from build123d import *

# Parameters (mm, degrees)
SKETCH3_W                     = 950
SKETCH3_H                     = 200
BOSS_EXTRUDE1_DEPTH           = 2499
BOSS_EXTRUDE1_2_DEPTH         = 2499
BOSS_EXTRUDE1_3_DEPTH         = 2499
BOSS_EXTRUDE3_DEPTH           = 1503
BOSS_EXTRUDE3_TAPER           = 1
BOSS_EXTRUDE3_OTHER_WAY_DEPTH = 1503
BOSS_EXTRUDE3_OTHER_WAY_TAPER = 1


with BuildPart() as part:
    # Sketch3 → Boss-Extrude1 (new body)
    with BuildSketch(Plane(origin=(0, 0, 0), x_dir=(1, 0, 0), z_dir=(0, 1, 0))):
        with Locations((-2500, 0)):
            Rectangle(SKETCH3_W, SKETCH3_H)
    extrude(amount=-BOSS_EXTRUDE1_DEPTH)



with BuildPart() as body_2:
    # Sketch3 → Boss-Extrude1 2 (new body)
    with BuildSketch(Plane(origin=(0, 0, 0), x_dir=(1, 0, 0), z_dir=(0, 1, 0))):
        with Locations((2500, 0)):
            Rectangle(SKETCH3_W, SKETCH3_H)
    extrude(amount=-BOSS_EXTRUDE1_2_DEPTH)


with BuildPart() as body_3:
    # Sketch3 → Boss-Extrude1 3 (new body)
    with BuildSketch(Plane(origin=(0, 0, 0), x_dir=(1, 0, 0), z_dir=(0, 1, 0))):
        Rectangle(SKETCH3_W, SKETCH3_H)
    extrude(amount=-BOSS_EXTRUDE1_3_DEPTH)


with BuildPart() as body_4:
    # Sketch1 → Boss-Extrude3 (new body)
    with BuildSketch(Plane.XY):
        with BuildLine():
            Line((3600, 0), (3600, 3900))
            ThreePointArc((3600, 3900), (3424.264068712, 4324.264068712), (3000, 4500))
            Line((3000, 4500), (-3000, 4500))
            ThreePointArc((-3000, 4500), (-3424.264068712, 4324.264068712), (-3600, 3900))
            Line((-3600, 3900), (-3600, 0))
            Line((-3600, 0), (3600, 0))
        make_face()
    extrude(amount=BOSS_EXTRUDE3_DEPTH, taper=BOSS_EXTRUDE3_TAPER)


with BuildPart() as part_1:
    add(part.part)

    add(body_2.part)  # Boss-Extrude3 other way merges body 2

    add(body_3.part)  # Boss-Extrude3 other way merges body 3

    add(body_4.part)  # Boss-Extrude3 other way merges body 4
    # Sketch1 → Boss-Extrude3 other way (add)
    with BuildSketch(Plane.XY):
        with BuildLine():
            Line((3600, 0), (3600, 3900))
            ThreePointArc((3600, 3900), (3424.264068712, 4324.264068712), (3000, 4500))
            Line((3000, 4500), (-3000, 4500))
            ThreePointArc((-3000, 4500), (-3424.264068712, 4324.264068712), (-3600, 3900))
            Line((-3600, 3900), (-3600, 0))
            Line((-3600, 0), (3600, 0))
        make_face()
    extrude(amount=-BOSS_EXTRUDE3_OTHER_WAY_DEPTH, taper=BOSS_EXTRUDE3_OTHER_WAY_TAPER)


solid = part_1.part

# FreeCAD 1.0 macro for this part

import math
import FreeCAD as App
import Part
import Sketcher
Q = App.Units.Quantity

doc = App.newDocument("Part")
body = doc.addObject("PartDesign::Body", "Body")

# Sketch on XZ plane
sketch1 = doc.addObject("Sketcher::SketchObject", "Sketch")
body.addObject(sketch1)
sketch1.AttachmentSupport = (doc.XZ_Plane, [""])
sketch1.MapMode = "FlatFace"
sketch1.addGeometry([
    Part.LineSegment(App.Vector(-2975, -100, 0), App.Vector(-2975, 100, 0)),
    Part.LineSegment(App.Vector(-2975, 100, 0), App.Vector(-2025, 100, 0)),
    Part.LineSegment(App.Vector(-2025, 100, 0), App.Vector(-2025, -100, 0)),
    Part.LineSegment(App.Vector(-2025, -100, 0), App.Vector(-2975, -100, 0)),
], False)
sketch1.addConstraint([
    Sketcher.Constraint("Coincident", 0, 2, 1, 1),
    Sketcher.Constraint("Coincident", 1, 2, 2, 1),
    Sketcher.Constraint("Coincident", 2, 2, 3, 1),
    Sketcher.Constraint("Coincident", 3, 2, 0, 1),
    Sketcher.Constraint("Vertical", 0),
    Sketcher.Constraint("Horizontal", 1),
    Sketcher.Constraint("Vertical", 2),
    Sketcher.Constraint("Horizontal", 3),
    Sketcher.Constraint("DistanceX", 1, 1, 1, 2, Q("950 mm")),
    Sketcher.Constraint("DistanceY", 0, 1, 0, 2, Q("200 mm")),
    Sketcher.Constraint("DistanceX", 0, 2, -1, 1, Q("2975 mm")),
    Sketcher.Constraint("DistanceY", -1, 1, 0, 2, Q("100 mm")),
])
pad1 = doc.addObject("PartDesign::Pad", "Pad")
body.addObject(pad1)
pad1.Profile = sketch1
pad1.Length = 2499
body2 = doc.addObject("PartDesign::Body", "Body001")

# Sketch on XZ plane
sketch2 = doc.addObject("Sketcher::SketchObject", "Sketch001")
body2.addObject(sketch2)
sketch2.AttachmentSupport = (doc.getObject("XZ_Plane001"), [""])
sketch2.MapMode = "FlatFace"
sketch2.addGeometry([
    Part.LineSegment(App.Vector(2025, -100, 0), App.Vector(2025, 100, 0)),
    Part.LineSegment(App.Vector(2025, 100, 0), App.Vector(2975, 100, 0)),
    Part.LineSegment(App.Vector(2975, 100, 0), App.Vector(2975, -100, 0)),
    Part.LineSegment(App.Vector(2975, -100, 0), App.Vector(2025, -100, 0)),
], False)
sketch2.addConstraint([
    Sketcher.Constraint("Coincident", 0, 2, 1, 1),
    Sketcher.Constraint("Coincident", 1, 2, 2, 1),
    Sketcher.Constraint("Coincident", 2, 2, 3, 1),
    Sketcher.Constraint("Coincident", 3, 2, 0, 1),
    Sketcher.Constraint("Vertical", 0),
    Sketcher.Constraint("Horizontal", 1),
    Sketcher.Constraint("Vertical", 2),
    Sketcher.Constraint("Horizontal", 3),
    Sketcher.Constraint("DistanceX", 1, 1, 1, 2, Q("950 mm")),
    Sketcher.Constraint("DistanceY", 0, 1, 0, 2, Q("200 mm")),
    Sketcher.Constraint("DistanceX", -1, 1, 0, 2, Q("2025 mm")),
    Sketcher.Constraint("DistanceY", -1, 1, 0, 2, Q("100 mm")),
])
pad2 = doc.addObject("PartDesign::Pad", "Pad001")
body2.addObject(pad2)
pad2.Profile = sketch2
pad2.Length = 2499
body3 = doc.addObject("PartDesign::Body", "Body002")

# Sketch on XZ plane
sketch3 = doc.addObject("Sketcher::SketchObject", "Sketch002")
body3.addObject(sketch3)
sketch3.AttachmentSupport = (doc.getObject("XZ_Plane002"), [""])
sketch3.MapMode = "FlatFace"
sketch3.addGeometry([
    Part.LineSegment(App.Vector(-475, -100, 0), App.Vector(-475, 100, 0)),
    Part.LineSegment(App.Vector(-475, 100, 0), App.Vector(475, 100, 0)),
    Part.LineSegment(App.Vector(475, 100, 0), App.Vector(475, -100, 0)),
    Part.LineSegment(App.Vector(475, -100, 0), App.Vector(-475, -100, 0)),
], False)
sketch3.addConstraint([
    Sketcher.Constraint("Coincident", 0, 2, 1, 1),
    Sketcher.Constraint("Coincident", 1, 2, 2, 1),
    Sketcher.Constraint("Coincident", 2, 2, 3, 1),
    Sketcher.Constraint("Coincident", 3, 2, 0, 1),
    Sketcher.Constraint("Vertical", 0),
    Sketcher.Constraint("Horizontal", 1),
    Sketcher.Constraint("Vertical", 2),
    Sketcher.Constraint("Horizontal", 3),
    Sketcher.Constraint("Symmetric", 0, 2, 2, 2, -1, 1),
    Sketcher.Constraint("DistanceX", 1, 1, 1, 2, Q("950 mm")),
    Sketcher.Constraint("DistanceY", 0, 1, 0, 2, Q("200 mm")),
])
pad3 = doc.addObject("PartDesign::Pad", "Pad002")
body3.addObject(pad3)
pad3.Profile = sketch3
pad3.Length = 2499
body4 = doc.addObject("PartDesign::Body", "Body003")

# Sketch on XY plane
sketch4 = doc.addObject("Sketcher::SketchObject", "Sketch003")
body4.addObject(sketch4)
sketch4.AttachmentSupport = (doc.getObject("XY_Plane003"), [""])
sketch4.MapMode = "FlatFace"
sketch4.addGeometry([
    Part.LineSegment(App.Vector(3600, 0, 0), App.Vector(3600, 3900, 0)),  # 0
    Part.ArcOfCircle(Part.Circle(App.Vector(3000, 3900, 0), App.Vector(0, 0, 1), 600), math.radians(0), math.radians(90)),  # 1
    Part.LineSegment(App.Vector(3000, 4500, 0), App.Vector(-3000, 4500, 0)),  # 2
    Part.ArcOfCircle(Part.Circle(App.Vector(-3000, 3900, 0), App.Vector(0, 0, 1), 600), math.radians(90), math.radians(180)),  # 3
    Part.LineSegment(App.Vector(-3600, 3900, 0), App.Vector(-3600, 0, 0)),  # 4
    Part.LineSegment(App.Vector(-3600, 0, 0), App.Vector(3600, 0, 0)),  # 5
], False)
sketch4.addConstraint([
    Sketcher.Constraint("Tangent", 0, 2, 1, 1),
    Sketcher.Constraint("Tangent", 1, 2, 2, 1),
    Sketcher.Constraint("Tangent", 2, 2, 3, 1),
    Sketcher.Constraint("Tangent", 3, 2, 4, 1),
    Sketcher.Constraint("Coincident", 4, 2, 5, 1),
    Sketcher.Constraint("Coincident", 5, 2, 0, 1),
    Sketcher.Constraint("Vertical", 0),
    Sketcher.Constraint("Horizontal", 2),
    Sketcher.Constraint("Vertical", 4),
    Sketcher.Constraint("Horizontal", 5),
    Sketcher.Constraint("Equal", 1, 3),
    Sketcher.Constraint("Symmetric", 4, 2, 5, 2, -1, 1),
    Sketcher.Constraint("Radius", 1, Q("600 mm")),
    Sketcher.Constraint("DistanceX", 2, 2, 2, 1, Q("6000 mm")),
    Sketcher.Constraint("DistanceY", 0, 1, 0, 2, Q("3900 mm")),
])
pad4 = doc.addObject("PartDesign::Pad", "Pad003")
body4.addObject(pad4)
pad4.Profile = sketch4
pad4.Length = 1503
pad4.TaperAngle = -1
body.AllowCompound = True
doc.recompute()

boolean = doc.addObject("PartDesign::Boolean", "Boolean")
body.addObject(boolean)
boolean.Type = "Fuse"
boolean.addObjects([body2])
doc.recompute()

boolean2 = doc.addObject("PartDesign::Boolean", "Boolean001")
body.addObject(boolean2)
boolean2.Type = "Fuse"
boolean2.addObjects([body3])
doc.recompute()

boolean3 = doc.addObject("PartDesign::Boolean", "Boolean002")
body.addObject(boolean3)
boolean3.Type = "Fuse"
boolean3.addObjects([body4])

# Sketch on XY plane
sketch5 = doc.addObject("Sketcher::SketchObject", "Sketch004")
body.addObject(sketch5)
sketch5.AttachmentSupport = (doc.XY_Plane, [""])
sketch5.MapMode = "FlatFace"
sketch5.addGeometry([
    Part.LineSegment(App.Vector(3600, 0, 0), App.Vector(3600, 3900, 0)),  # 0
    Part.ArcOfCircle(Part.Circle(App.Vector(3000, 3900, 0), App.Vector(0, 0, 1), 600), math.radians(0), math.radians(90)),  # 1
    Part.LineSegment(App.Vector(3000, 4500, 0), App.Vector(-3000, 4500, 0)),  # 2
    Part.ArcOfCircle(Part.Circle(App.Vector(-3000, 3900, 0), App.Vector(0, 0, 1), 600), math.radians(90), math.radians(180)),  # 3
    Part.LineSegment(App.Vector(-3600, 3900, 0), App.Vector(-3600, 0, 0)),  # 4
    Part.LineSegment(App.Vector(-3600, 0, 0), App.Vector(3600, 0, 0)),  # 5
], False)
sketch5.addConstraint([
    Sketcher.Constraint("Tangent", 0, 2, 1, 1),
    Sketcher.Constraint("Tangent", 1, 2, 2, 1),
    Sketcher.Constraint("Tangent", 2, 2, 3, 1),
    Sketcher.Constraint("Tangent", 3, 2, 4, 1),
    Sketcher.Constraint("Coincident", 4, 2, 5, 1),
    Sketcher.Constraint("Coincident", 5, 2, 0, 1),
    Sketcher.Constraint("Vertical", 0),
    Sketcher.Constraint("Horizontal", 2),
    Sketcher.Constraint("Vertical", 4),
    Sketcher.Constraint("Horizontal", 5),
    Sketcher.Constraint("Equal", 1, 3),
    Sketcher.Constraint("Symmetric", 4, 2, 5, 2, -1, 1),
    Sketcher.Constraint("Radius", 1, Q("600 mm")),
    Sketcher.Constraint("DistanceX", 2, 2, 2, 1, Q("6000 mm")),
    Sketcher.Constraint("DistanceY", 0, 1, 0, 2, Q("3900 mm")),
])
pad5 = doc.addObject("PartDesign::Pad", "Pad004")
body.addObject(pad5)
pad5.Profile = sketch5
pad5.Length = 1503
pad5.Reversed = True
pad5.TaperAngle = -1

doc.recompute()
